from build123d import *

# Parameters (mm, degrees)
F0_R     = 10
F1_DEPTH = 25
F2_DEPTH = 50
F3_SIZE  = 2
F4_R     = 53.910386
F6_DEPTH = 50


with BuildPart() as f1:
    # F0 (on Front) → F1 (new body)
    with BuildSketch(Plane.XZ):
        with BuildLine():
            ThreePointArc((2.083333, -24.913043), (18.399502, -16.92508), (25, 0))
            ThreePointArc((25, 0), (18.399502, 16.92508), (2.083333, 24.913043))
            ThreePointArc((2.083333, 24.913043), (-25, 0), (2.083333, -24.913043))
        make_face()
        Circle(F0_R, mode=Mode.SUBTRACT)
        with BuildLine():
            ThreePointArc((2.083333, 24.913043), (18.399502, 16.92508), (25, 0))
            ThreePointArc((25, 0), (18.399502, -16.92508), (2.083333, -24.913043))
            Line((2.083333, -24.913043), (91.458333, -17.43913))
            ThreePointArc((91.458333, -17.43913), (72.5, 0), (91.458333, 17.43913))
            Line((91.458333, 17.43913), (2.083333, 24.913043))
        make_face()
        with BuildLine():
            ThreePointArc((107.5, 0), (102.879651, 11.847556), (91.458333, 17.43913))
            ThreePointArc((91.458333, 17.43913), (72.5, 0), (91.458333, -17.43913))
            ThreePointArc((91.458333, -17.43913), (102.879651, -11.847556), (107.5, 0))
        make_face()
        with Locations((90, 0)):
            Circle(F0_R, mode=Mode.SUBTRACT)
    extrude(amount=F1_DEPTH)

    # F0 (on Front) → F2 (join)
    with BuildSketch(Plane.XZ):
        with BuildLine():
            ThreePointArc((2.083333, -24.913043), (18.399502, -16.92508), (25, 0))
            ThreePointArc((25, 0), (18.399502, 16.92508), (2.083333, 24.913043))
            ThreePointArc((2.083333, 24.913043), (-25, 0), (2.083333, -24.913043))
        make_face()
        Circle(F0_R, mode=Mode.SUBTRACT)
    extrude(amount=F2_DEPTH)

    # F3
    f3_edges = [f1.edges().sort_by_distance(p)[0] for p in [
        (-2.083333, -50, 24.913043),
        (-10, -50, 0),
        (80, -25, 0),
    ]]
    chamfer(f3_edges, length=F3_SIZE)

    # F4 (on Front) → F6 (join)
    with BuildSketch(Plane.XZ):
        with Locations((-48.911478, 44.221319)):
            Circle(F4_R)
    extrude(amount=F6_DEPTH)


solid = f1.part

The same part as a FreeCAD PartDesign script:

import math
import FreeCAD as App
import Part
import Sketcher
from FreeCAD import Vector
Q = App.Units.Quantity


def edges_at(feature, points):
    """Names of the edges that pass closest to the given points."""
    edges = feature.Shape.Edges
    near = lambda p: min(range(len(edges)), key=lambda i: edges[i].distToShape(Part.Vertex(*p))[0])
    return sorted({f"Edge{near(p) + 1}" for p in points})

doc = App.newDocument("Part")
body = doc.addObject("PartDesign::Body", "Body")

# Sketch on XZ plane
sketch1 = body.newObject("Sketcher::SketchObject", "Sketch")
sketch1.AttachmentSupport = (doc.getObject("XZ_Plane"), [""])
sketch1.MapMode = "FlatFace"
sketch1.addGeometry(Part.ArcOfCircle(Part.Circle(Vector(0, 0, 0), Vector(0, 0, 1), 25), math.radians(85), math.radians(275)), False)
sketch1.addGeometry(Part.LineSegment(Vector(2, -25, 0), Vector(91, -17, 0)), False)
sketch1.addGeometry(Part.ArcOfCircle(Part.Circle(Vector(90, 0, 0), Vector(0, 0, 1), 18), math.radians(-85), math.radians(0)), False)
sketch1.addGeometry(Part.ArcOfCircle(Part.Circle(Vector(90, 0, 0), Vector(0, 0, 1), 18), math.radians(0), math.radians(85)), False)
sketch1.addGeometry(Part.LineSegment(Vector(91, 17, 0), Vector(2, 25, 0)), False)
sketch1.addGeometry(Part.Circle(Vector(0, 0, 0), Vector(0, 0, 1), 10), False)
sketch1.addGeometry(Part.Circle(Vector(90, 0, 0), Vector(0, 0, 1), 10), False)
sketch1.addConstraint(Sketcher.Constraint("Tangent", 0, 2, 1, 1))
sketch1.addConstraint(Sketcher.Constraint("Tangent", 1, 2, 2, 1))
sketch1.addConstraint(Sketcher.Constraint("Tangent", 2, 2, 3, 1))
sketch1.addConstraint(Sketcher.Constraint("Tangent", 3, 2, 4, 1))
sketch1.addConstraint(Sketcher.Constraint("Tangent", 4, 2, 0, 1))
sketch1.addConstraint(Sketcher.Constraint("Coincident", 0, 3, -1, 1))
sketch1.addConstraint(Sketcher.Constraint("Coincident", 5, 3, -1, 1))
sketch1.addConstraint(Sketcher.Constraint("Coincident", 6, 3, 2, 3))
sketch1.addConstraint(Sketcher.Constraint("Equal", 2, 3))
sketch1.addConstraint(Sketcher.Constraint("Equal", 5, 6))
sketch1.addConstraint(Sketcher.Constraint("PointOnObject", 2, 3, -1))
sketch1.addConstraint(Sketcher.Constraint("PointOnObject", 2, 2, -1))
sketch1.addConstraint(Sketcher.Constraint("Diameter", 5, Q("20 mm")))
sketch1.addConstraint(Sketcher.Constraint("Radius", 0, Q("25 mm")))
sketch1.addConstraint(Sketcher.Constraint("Radius", 2, Q("17.5 mm")))
sketch1.addConstraint(Sketcher.Constraint("DistanceX", -1, 1, 2, 3, Q("90 mm")))
pad1 = body.newObject("PartDesign::Pad", "Pad")
pad1.Profile = sketch1
pad1.Length = 25

# Sketch on XZ plane
sketch2 = body.newObject("Sketcher::SketchObject", "Sketch001")
sketch2.AttachmentSupport = (doc.getObject("XZ_Plane"), [""])
sketch2.MapMode = "FlatFace"
sketch2.addGeometry(Part.ArcOfCircle(Part.Circle(Vector(0, 0, 0), Vector(0, 0, 1), 25), math.radians(-85), math.radians(0)), False)
sketch2.addGeometry(Part.ArcOfCircle(Part.Circle(Vector(0, 0, 0), Vector(0, 0, 1), 25), math.radians(0), math.radians(85)), False)
sketch2.addGeometry(Part.ArcOfCircle(Part.Circle(Vector(0, 0, 0), Vector(0, 0, 1), 25), math.radians(85), math.radians(275)), False)
sketch2.addGeometry(Part.Circle(Vector(0, 0, 0), Vector(0, 0, 1), 10), False)
sketch2.addConstraint(Sketcher.Constraint("Tangent", 0, 2, 1, 1))
sketch2.addConstraint(Sketcher.Constraint("Tangent", 1, 2, 2, 1))
sketch2.addConstraint(Sketcher.Constraint("Tangent", 2, 2, 0, 1))
sketch2.addConstraint(Sketcher.Constraint("Coincident", 0, 3, -1, 1))
sketch2.addConstraint(Sketcher.Constraint("Coincident", 3, 3, -1, 1))
sketch2.addConstraint(Sketcher.Constraint("PointOnObject", 0, 2, -1))
sketch2.addConstraint(Sketcher.Constraint("Vertical", 1, 2, 2, 2))
sketch2.addConstraint(Sketcher.Constraint("Diameter", 3, Q("20 mm")))
sketch2.addConstraint(Sketcher.Constraint("Radius", 0, Q("24.999999 mm")))
sketch2.addConstraint(Sketcher.Constraint("DistanceX", -1, 1, 1, 2, Q("2.083333 mm")))
pad2 = body.newObject("PartDesign::Pad", "Pad001")
pad2.Profile = sketch2
pad2.Length = 50
doc.recompute()

chamfer = body.newObject("PartDesign::Chamfer", "Chamfer")
chamfer.Base = (pad2, edges_at(pad2, [(-25, -50, 0), (-10, -50, 0), (80, -25, 0)]))
chamfer.Size = 2

# Sketch on XZ plane
sketch3 = body.newObject("Sketcher::SketchObject", "Sketch002")
sketch3.AttachmentSupport = (doc.getObject("XZ_Plane"), [""])
sketch3.MapMode = "FlatFace"
sketch3.addGeometry(Part.Circle(Vector(-49, 44, 0), Vector(0, 0, 1), 54), False)
sketch3.addConstraint(Sketcher.Constraint("Diameter", 0, Q("107.820772 mm")))
sketch3.addConstraint(Sketcher.Constraint("DistanceX", 0, 3, -1, 1, Q("48.911478 mm")))
sketch3.addConstraint(Sketcher.Constraint("DistanceY", -1, 1, 0, 3, Q("44.221319 mm")))
pad3 = body.newObject("PartDesign::Pad", "Pad002")
pad3.Profile = sketch3
pad3.Length = 50

doc.recompute()
